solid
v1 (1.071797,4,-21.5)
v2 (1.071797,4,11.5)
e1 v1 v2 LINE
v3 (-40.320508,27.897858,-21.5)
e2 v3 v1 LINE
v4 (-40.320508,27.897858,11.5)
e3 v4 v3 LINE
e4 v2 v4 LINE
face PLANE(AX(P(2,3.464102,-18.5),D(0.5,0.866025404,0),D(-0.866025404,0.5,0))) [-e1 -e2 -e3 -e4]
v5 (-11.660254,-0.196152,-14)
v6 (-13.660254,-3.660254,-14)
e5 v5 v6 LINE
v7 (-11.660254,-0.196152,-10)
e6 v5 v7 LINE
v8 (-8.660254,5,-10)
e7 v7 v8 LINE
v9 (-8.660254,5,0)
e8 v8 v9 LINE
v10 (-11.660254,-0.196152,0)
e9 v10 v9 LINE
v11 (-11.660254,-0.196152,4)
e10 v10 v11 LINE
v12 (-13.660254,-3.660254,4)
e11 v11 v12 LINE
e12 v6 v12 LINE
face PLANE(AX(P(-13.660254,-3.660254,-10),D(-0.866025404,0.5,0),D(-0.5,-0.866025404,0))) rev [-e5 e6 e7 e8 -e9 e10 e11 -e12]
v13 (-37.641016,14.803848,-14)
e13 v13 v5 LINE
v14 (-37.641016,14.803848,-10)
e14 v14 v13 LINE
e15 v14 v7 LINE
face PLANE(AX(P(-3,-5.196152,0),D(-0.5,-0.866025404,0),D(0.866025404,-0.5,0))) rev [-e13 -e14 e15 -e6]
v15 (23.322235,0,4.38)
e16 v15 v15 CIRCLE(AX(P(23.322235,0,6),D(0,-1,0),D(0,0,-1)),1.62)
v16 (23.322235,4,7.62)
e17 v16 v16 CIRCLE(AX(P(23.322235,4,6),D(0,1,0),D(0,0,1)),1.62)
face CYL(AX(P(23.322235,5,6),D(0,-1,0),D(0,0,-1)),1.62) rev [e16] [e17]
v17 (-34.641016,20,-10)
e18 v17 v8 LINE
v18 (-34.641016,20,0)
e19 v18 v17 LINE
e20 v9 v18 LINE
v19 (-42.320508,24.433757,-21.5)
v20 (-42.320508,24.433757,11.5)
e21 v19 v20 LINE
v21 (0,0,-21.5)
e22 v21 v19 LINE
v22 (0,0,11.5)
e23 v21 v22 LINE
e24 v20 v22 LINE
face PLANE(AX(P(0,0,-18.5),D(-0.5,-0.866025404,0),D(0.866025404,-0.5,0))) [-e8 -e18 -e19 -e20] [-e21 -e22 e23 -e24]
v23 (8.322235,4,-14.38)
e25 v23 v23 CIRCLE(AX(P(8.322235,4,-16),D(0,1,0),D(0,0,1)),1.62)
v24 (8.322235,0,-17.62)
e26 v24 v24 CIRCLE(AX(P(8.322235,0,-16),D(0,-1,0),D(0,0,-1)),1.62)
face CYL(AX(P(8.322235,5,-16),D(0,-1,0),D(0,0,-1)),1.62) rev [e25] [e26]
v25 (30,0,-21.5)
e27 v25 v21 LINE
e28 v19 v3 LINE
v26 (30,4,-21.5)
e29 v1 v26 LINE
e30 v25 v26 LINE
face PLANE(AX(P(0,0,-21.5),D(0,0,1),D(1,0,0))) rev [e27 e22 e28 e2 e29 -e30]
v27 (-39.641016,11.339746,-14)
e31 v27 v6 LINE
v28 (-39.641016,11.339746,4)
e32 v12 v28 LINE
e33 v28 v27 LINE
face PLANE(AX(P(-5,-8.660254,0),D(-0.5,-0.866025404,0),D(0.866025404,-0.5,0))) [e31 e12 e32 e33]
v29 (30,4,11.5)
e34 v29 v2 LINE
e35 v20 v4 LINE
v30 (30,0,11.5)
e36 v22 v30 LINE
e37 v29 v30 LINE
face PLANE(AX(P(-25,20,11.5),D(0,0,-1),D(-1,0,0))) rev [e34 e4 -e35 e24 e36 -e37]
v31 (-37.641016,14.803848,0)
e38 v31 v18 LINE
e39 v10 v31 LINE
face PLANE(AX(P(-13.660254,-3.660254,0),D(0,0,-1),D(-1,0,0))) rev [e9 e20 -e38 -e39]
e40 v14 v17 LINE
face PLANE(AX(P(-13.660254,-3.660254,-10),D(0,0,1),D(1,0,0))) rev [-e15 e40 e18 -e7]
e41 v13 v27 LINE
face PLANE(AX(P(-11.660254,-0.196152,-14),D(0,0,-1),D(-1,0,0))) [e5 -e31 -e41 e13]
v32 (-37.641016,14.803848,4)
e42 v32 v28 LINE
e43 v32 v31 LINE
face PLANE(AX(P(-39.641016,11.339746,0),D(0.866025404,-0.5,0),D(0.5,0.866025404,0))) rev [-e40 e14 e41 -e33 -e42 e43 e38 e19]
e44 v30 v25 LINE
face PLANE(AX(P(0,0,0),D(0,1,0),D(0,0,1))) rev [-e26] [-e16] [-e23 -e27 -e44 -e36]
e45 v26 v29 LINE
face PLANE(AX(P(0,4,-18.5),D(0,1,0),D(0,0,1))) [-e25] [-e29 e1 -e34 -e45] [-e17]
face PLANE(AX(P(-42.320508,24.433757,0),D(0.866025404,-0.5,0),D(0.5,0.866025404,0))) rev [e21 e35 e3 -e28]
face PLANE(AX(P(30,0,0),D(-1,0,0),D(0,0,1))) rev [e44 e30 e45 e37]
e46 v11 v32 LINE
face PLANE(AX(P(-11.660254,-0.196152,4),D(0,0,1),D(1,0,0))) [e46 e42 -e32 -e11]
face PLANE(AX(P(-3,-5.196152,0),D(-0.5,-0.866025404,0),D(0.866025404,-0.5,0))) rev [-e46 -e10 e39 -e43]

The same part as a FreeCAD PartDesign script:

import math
import FreeCAD as App
import Part
import Sketcher
from FreeCAD import Vector
Q = App.Units.Quantity

doc = App.newDocument("Part")
body = doc.addObject("PartDesign::Body", "Body")

# Sketch on XZ plane
sketch1 = doc.addObject("Sketcher::SketchObject", "Sketch")
body.addObject(sketch1)
sketch1.AttachmentSupport = (doc.XZ_Plane, [""])
sketch1.MapMode = "FlatFace"
sketch1.addGeometry([
    Part.LineSegment(Vector(-25, -12, 0), Vector(-25, 12, 0)),
    Part.LineSegment(Vector(-25, 12, 0), Vector(25, 12, 0)),
    Part.LineSegment(Vector(25, 12, 0), Vector(25, -12, 0)),
    Part.LineSegment(Vector(25, -12, 0), Vector(-25, -12, 0)),
], False)
sketch1.addConstraint([
    Sketcher.Constraint("Coincident", 0, 2, 1, 1),
    Sketcher.Constraint("Coincident", 1, 2, 2, 1),
    Sketcher.Constraint("Coincident", 2, 2, 3, 1),
    Sketcher.Constraint("Coincident", 3, 2, 0, 1),
    Sketcher.Constraint("Vertical", 0),
    Sketcher.Constraint("Horizontal", 1),
    Sketcher.Constraint("Vertical", 2),
    Sketcher.Constraint("Horizontal", 3),
    Sketcher.Constraint("Symmetric", 0, 2, 2, 2, -1, 1),
    Sketcher.Constraint("DistanceX", 1, 1, 1, 2, 50.0),
    Sketcher.Constraint("DistanceY", 0, 1, 0, 2, 23.0),
])
pad1 = doc.addObject("PartDesign::Pad", "Pad")
body.addObject(pad1)
pad1.Profile = sketch1
pad1.Length = 20
pad1.Reversed = True

# Sketch on XY plane
sketch2 = doc.addObject("Sketcher::SketchObject", "Sketch001")
body.addObject(sketch2)
sketch2.AttachmentSupport = (doc.XY_Plane, [""])
sketch2.MapMode = "FlatFace"
sketch2.AttachmentOffset = App.Placement(Vector(0, 0, 11.5), App.Rotation())
sketch2.addGeometry([
    Part.LineSegment(Vector(0, 0, 0), Vector(-25, 14.4, 0)),  # 0
    Part.LineSegment(Vector(-25, 14.4, 0), Vector(-25, 0, 0)),  # 1
    Part.LineSegment(Vector(-25, 0, 0), Vector(0, 0, 0)),  # 2
    Part.LineSegment(Vector(1.1, 4, 0), Vector(25, 4, 0)),  # 3
    Part.LineSegment(Vector(25, 4, 0), Vector(25, 20, 0)),  # 4
    Part.LineSegment(Vector(25, 20, 0), Vector(-25, 20, 0)),  # 5
    Part.LineSegment(Vector(-25, 20, 0), Vector(-25, 19.1, 0)),  # 6
    Part.LineSegment(Vector(-25, 19.1, 0), Vector(1.1, 4, 0)),  # 7
], False)
sketch2.addConstraint([
    Sketcher.Constraint("Coincident", 0, 2, 1, 1),
    Sketcher.Constraint("Coincident", 1, 2, 2, 1),
    Sketcher.Constraint("Coincident", 2, 2, 0, 1),
    Sketcher.Constraint("Coincident", 3, 2, 4, 1),
    Sketcher.Constraint("Coincident", 4, 2, 5, 1),
    Sketcher.Constraint("Coincident", 5, 2, 6, 1),
    Sketcher.Constraint("Coincident", 6, 2, 7, 1),
    Sketcher.Constraint("Coincident", 7, 2, 3, 1),
    Sketcher.Constraint("Vertical", 1),
    Sketcher.Constraint("Horizontal", 2),
    Sketcher.Constraint("Horizontal", 3),
    Sketcher.Constraint("Vertical", 4),
    Sketcher.Constraint("Horizontal", 5),
    Sketcher.Constraint("Vertical", 6),
    Sketcher.Constraint("Coincident", 2, 2, -1, 1),
    Sketcher.Constraint("Parallel", 0, 7),
    Sketcher.Constraint("Vertical", 1, 2, 5, 2),
    Sketcher.Constraint("DistanceX", 2, 1, 2, 2, 25.0),
    Sketcher.Constraint("DistanceX", 5, 2, 5, 1, 50.0),
    Sketcher.Constraint("DistanceY", 4, 1, 4, 2, 16.0),
    Sketcher.Constraint("Angle", 0, Q("150 deg")),
    Sketcher.Constraint("DistanceY", -1, 1, 3, 2, 4.0),
    Sketcher.Constraint("DistanceY", 6, 2, 6, 1, 0.947441),
])
pocket1 = doc.addObject("PartDesign::Pocket", "Pocket")
body.addObject(pocket1)
pocket1.Profile = sketch2
pocket1.Length = 30

# Sketch on XY plane
sketch3 = doc.addObject("Sketcher::SketchObject", "Sketch002")
body.addObject(sketch3)
sketch3.AttachmentSupport = (doc.XY_Plane, [""])
sketch3.MapMode = "FlatFace"
sketch3.AttachmentOffset = App.Placement(Vector(0, 0, 11.5), App.Rotation())
sketch3.addGeometry([
    Part.LineSegment(Vector(-25, 14.4, 0), Vector(-23, 17.9, 0)),
    Part.LineSegment(Vector(-23, 17.9, 0), Vector(-25, 19.1, 0)),
    Part.LineSegment(Vector(-25, 19.1, 0), Vector(-25, 14.4, 0)),
], False)
sketch3.addConstraint([
    Sketcher.Constraint("Coincident", 0, 2, 1, 1),
    Sketcher.Constraint("Coincident", 1, 2, 2, 1),
    Sketcher.Constraint("Coincident", 2, 2, 0, 1),
    Sketcher.Constraint("Vertical", 2),
    Sketcher.Constraint("Perpendicular", 0, 1),
    Sketcher.Constraint("Angle", 0, Q("60 deg")),
    Sketcher.Constraint("Distance", 0, 4.0),
    Sketcher.Constraint("DistanceX", 0, 2, -1, 1, 23.0),
    Sketcher.Constraint("DistanceY", -1, 1, 0, 2, 17.897858),
])
pocket2 = doc.addObject("PartDesign::Pocket", "Pocket001")
body.addObject(pocket2)
pocket2.Profile = sketch3
pocket2.Length = 30

# Sketch on an angled plane
sketch4 = doc.addObject("Sketcher::SketchObject", "Sketch003")
body.addObject(sketch4)
sketch4.Placement = App.Placement(Vector(-25, 14.433757, 0), App.Rotation(Vector(0, 0, 1), Vector(0.5, 0.866025404, 0), Vector(-0.866025404, 0.5, 0), "ZXY"))
sketch4.addGeometry([
    Part.LineSegment(Vector(-11.5, 4, 0), Vector(-11.5, 0, 0)),
    Part.LineSegment(Vector(-11.5, 0, 0), Vector(11.5, 0, 0)),
    Part.LineSegment(Vector(11.5, 0, 0), Vector(11.5, 4, 0)),
    Part.LineSegment(Vector(11.5, 4, 0), Vector(-11.5, 4, 0)),
], False)
sketch4.addConstraint([
    Sketcher.Constraint("Coincident", 0, 2, 1, 1),
    Sketcher.Constraint("Coincident", 1, 2, 2, 1),
    Sketcher.Constraint("Coincident", 2, 2, 3, 1),
    Sketcher.Constraint("Coincident", 3, 2, 0, 1),
    Sketcher.Constraint("Vertical", 0),
    Sketcher.Constraint("Horizontal", 1),
    Sketcher.Constraint("Vertical", 2),
    Sketcher.Constraint("Horizontal", 3),
    Sketcher.Constraint("Symmetric", 0, 2, 1, 2, -1, 1),
    Sketcher.Constraint("DistanceX", 1, 1, 1, 2, 23.0),
    Sketcher.Constraint("DistanceY", 0, 2, 0, 1, 4.0),
])
pad2 = doc.addObject("PartDesign::Pad", "Pad001")
body.addObject(pad2)
pad2.Profile = sketch4
pad2.Length = 20

# Sketch on XY plane
sketch5 = doc.addObject("Sketcher::SketchObject", "Sketch004")
body.addObject(sketch5)
sketch5.AttachmentSupport = (doc.XY_Plane, [""])
sketch5.MapMode = "FlatFace"
sketch5.AttachmentOffset = App.Placement(Vector(0, 0, -11.5), App.Rotation())
sketch5.addGeometry([
    Part.LineSegment(Vector(1.1, 4, 0), Vector(25, 4, 0)),  # 0
    Part.LineSegment(Vector(25, 4, 0), Vector(25, 0, 0)),  # 1
    Part.LineSegment(Vector(25, 0, 0), Vector(0, 0, 0)),  # 2
    Part.LineSegment(Vector(0, 0, 0), Vector(-42.3, 24.4, 0)),  # 3
    Part.LineSegment(Vector(-42.3, 24.4, 0), Vector(-40.3, 27.9, 0)),  # 4
    Part.LineSegment(Vector(-40.3, 27.9, 0), Vector(1.1, 4, 0)),  # 5
], False)
sketch5.addConstraint([
    Sketcher.Constraint("Coincident", 0, 2, 1, 1),
    Sketcher.Constraint("Coincident", 1, 2, 2, 1),
    Sketcher.Constraint("Coincident", 2, 2, 3, 1),
    Sketcher.Constraint("Coincident", 3, 2, 4, 1),
    Sketcher.Constraint("Coincident", 4, 2, 5, 1),
    Sketcher.Constraint("Coincident", 5, 2, 0, 1),
    Sketcher.Constraint("Horizontal", 0),
    Sketcher.Constraint("Vertical", 1),
    Sketcher.Constraint("Horizontal", 2),
    Sketcher.Constraint("Coincident", 2, 2, -1, 1),
    Sketcher.Constraint("Perpendicular", 3, 4),
    Sketcher.Constraint("Perpendicular", 4, 5),
    Sketcher.Constraint("DistanceX", 2, 2, 2, 1, 25.0),
    Sketcher.Constraint("DistanceY", 1, 2, 1, 1, 4.0),
    Sketcher.Constraint("Angle", 3, Q("150 deg")),
    Sketcher.Constraint("Distance", 4, 4.0),
    Sketcher.Constraint("DistanceX", 3, 2, -1, 1, 42.320508),
])
pad3 = doc.addObject("PartDesign::Pad", "Pad002")
body.addObject(pad3)
pad3.Profile = sketch5
pad3.Length = 10
pad3.Reversed = True

# Sketch on YZ plane
sketch6 = doc.addObject("Sketcher::SketchObject", "Sketch005")
body.addObject(sketch6)
sketch6.AttachmentSupport = (doc.YZ_Plane, [""])
sketch6.MapMode = "FlatFace"
sketch6.AttachmentOffset = App.Placement(Vector(0, 0, 25), App.Rotation())
sketch6.addGeometry([
    Part.LineSegment(Vector(4, 11.5, 0), Vector(0, 11.5, 0)),
    Part.LineSegment(Vector(0, 11.5, 0), Vector(0, -21.5, 0)),
    Part.LineSegment(Vector(0, -21.5, 0), Vector(4, -21.5, 0)),
    Part.LineSegment(Vector(4, -21.5, 0), Vector(4, 11.5, 0)),
], False)
sketch6.addConstraint([
    Sketcher.Constraint("Coincident", 0, 2, 1, 1),
    Sketcher.Constraint("Coincident", 1, 2, 2, 1),
    Sketcher.Constraint("Coincident", 2, 2, 3, 1),
    Sketcher.Constraint("Coincident", 3, 2, 0, 1),
    Sketcher.Constraint("Horizontal", 0),
    Sketcher.Constraint("Vertical", 1),
    Sketcher.Constraint("Horizontal", 2),
    Sketcher.Constraint("Vertical", 3),
    Sketcher.Constraint("PointOnObject", 0, 2, -2),
    Sketcher.Constraint("DistanceX", 0, 2, 0, 1, 4.0),
    Sketcher.Constraint("DistanceY", 1, 2, 1, 1, 33.0),
    Sketcher.Constraint("DistanceY", -1, 1, 0, 2, 11.5),
])
pad4 = doc.addObject("PartDesign::Pad", "Pad003")
body.addObject(pad4)
pad4.Profile = sketch6
pad4.Length = 5

# Sketch on XZ plane
sketch7 = doc.addObject("Sketcher::SketchObject", "Sketch006")
body.addObject(sketch7)
sketch7.AttachmentSupport = (doc.XZ_Plane, [""])
sketch7.MapMode = "FlatFace"
sketch7.addGeometry([
    Part.ArcOfCircle(Part.Circle(Vector(23.3, 6, 0), Vector(0, 0, 1), 1.6), math.radians(90), math.radians(360)),  # 0
    Part.ArcOfCircle(Part.Circle(Vector(23.3, 6, 0), Vector(0, 0, 1), 1.6), math.radians(0), math.radians(90)),  # 1
    Part.ArcOfCircle(Part.Circle(Vector(8.3, -16, 0), Vector(0, 0, 1), 1.6), math.radians(180), math.radians(270)),  # 2
    Part.ArcOfCircle(Part.Circle(Vector(8.3, -16, 0), Vector(0, 0, 1), 1.6), math.radians(-90), math.radians(0)),  # 3
    Part.ArcOfCircle(Part.Circle(Vector(8.3, -16, 0), Vector(0, 0, 1), 1.6), math.radians(0), math.radians(180)),  # 4
], False)
sketch7.addConstraint([
    Sketcher.Constraint("Tangent", 0, 1, 1, 2),
    Sketcher.Constraint("Coincident", 1, 1, 0, 2),
    Sketcher.Constraint("Tangent", 2, 2, 3, 1),
    Sketcher.Constraint("Tangent", 3, 2, 4, 1),
    Sketcher.Constraint("Tangent", 4, 2, 2, 1),
    Sketcher.Constraint("Equal", 1, 2),
    Sketcher.Constraint("Horizontal", 0, 3, 1, 1),
    Sketcher.Constraint("Horizontal", 4, 3, 3, 2),
    Sketcher.Constraint("Horizontal", 3, 2, 4, 2),
    Sketcher.Constraint("Vertical", 1, 3, 0, 1),
    Sketcher.Constraint("Vertical", 4, 3, 2, 2),
    Sketcher.Constraint("Radius", 0, 1.62),
    Sketcher.Constraint("DistanceY", -1, 1, 0, 3, 6.0),
    Sketcher.Constraint("DistanceY", 2, 3, -1, 1, 16.0),
    Sketcher.Constraint("DistanceX", 2, 3, 0, 3, 15.0),
    Sketcher.Constraint("DistanceX", -1, 1, 0, 3, 23.322235),
])
pocket3 = doc.addObject("PartDesign::Pocket", "Pocket002")
body.addObject(pocket3)
pocket3.Profile = sketch7
pocket3.Length = 5

# Sketch on an angled plane
sketch8 = doc.addObject("Sketcher::SketchObject", "Sketch007")
body.addObject(sketch8)
sketch8.Placement = App.Placement(Vector(0, 0, 0), App.Rotation(Vector(0.866025404, -0.5, 0), Vector(0, 0, 1), Vector(-0.5, -0.866025404, 0), "ZXY"))
sketch8.addGeometry([
    Part.LineSegment(Vector(-40, 0, 0), Vector(-40, -10, 0)),
    Part.LineSegment(Vector(-40, -10, 0), Vector(-10, -10, 0)),
    Part.LineSegment(Vector(-10, -10, 0), Vector(-10, 0, 0)),
    Part.LineSegment(Vector(-10, 0, 0), Vector(-40, 0, 0)),
], False)
sketch8.addConstraint([
    Sketcher.Constraint("Coincident", 0, 2, 1, 1),
    Sketcher.Constraint("Coincident", 1, 2, 2, 1),
    Sketcher.Constraint("Coincident", 2, 2, 3, 1),
    Sketcher.Constraint("Coincident", 3, 2, 0, 1),
    Sketcher.Constraint("Vertical", 0),
    Sketcher.Constraint("Horizontal", 1),
    Sketcher.Constraint("Vertical", 2),
    Sketcher.Constraint("Horizontal", 3),
    Sketcher.Constraint("PointOnObject", 2, 2, -1),
    Sketcher.Constraint("DistanceX", 1, 1, 1, 2, 30.0),
    Sketcher.Constraint("DistanceY", 0, 2, 0, 1, 10.0),
    Sketcher.Constraint("DistanceX", 0, 2, -1, 1, 40.0),
])
pad5 = doc.addObject("PartDesign::Pad", "Pad004")
body.addObject(pad5)
pad5.Profile = sketch8
pad5.Length = 10

# Sketch on an angled plane
sketch9 = doc.addObject("Sketcher::SketchObject", "Sketch008")
body.addObject(sketch9)
sketch9.Placement = App.Placement(Vector(-5, -8.660254, 0), App.Rotation(Vector(0.866025404, -0.5, 0), Vector(0, 0, 1), Vector(-0.5, -0.866025404, 0), "ZXY"))
sketch9.addGeometry([
    Part.LineSegment(Vector(-40, 4, 0), Vector(-40, -14, 0)),
    Part.LineSegment(Vector(-40, -14, 0), Vector(-10, -14, 0)),
    Part.LineSegment(Vector(-10, -14, 0), Vector(-10, 4, 0)),
    Part.LineSegment(Vector(-10, 4, 0), Vector(-40, 4, 0)),
], False)
sketch9.addConstraint([
    Sketcher.Constraint("Coincident", 0, 2, 1, 1),
    Sketcher.Constraint("Coincident", 1, 2, 2, 1),
    Sketcher.Constraint("Coincident", 2, 2, 3, 1),
    Sketcher.Constraint("Coincident", 3, 2, 0, 1),
    Sketcher.Constraint("Vertical", 0),
    Sketcher.Constraint("Horizontal", 1),
    Sketcher.Constraint("Vertical", 2),
    Sketcher.Constraint("Horizontal", 3),
    Sketcher.Constraint("DistanceX", 1, 1, 1, 2, 30.0),
    Sketcher.Constraint("DistanceY", 0, 2, 0, 1, 18.0),
    Sketcher.Constraint("DistanceX", 0, 2, -1, 1, 40.0),
    Sketcher.Constraint("DistanceY", 0, 2, -1, 1, 14.0),
])
pad6 = doc.addObject("PartDesign::Pad", "Pad005")
body.addObject(pad6)
pad6.Profile = sketch9
pad6.Length = 4
pad6.Reversed = True

doc.recompute()
